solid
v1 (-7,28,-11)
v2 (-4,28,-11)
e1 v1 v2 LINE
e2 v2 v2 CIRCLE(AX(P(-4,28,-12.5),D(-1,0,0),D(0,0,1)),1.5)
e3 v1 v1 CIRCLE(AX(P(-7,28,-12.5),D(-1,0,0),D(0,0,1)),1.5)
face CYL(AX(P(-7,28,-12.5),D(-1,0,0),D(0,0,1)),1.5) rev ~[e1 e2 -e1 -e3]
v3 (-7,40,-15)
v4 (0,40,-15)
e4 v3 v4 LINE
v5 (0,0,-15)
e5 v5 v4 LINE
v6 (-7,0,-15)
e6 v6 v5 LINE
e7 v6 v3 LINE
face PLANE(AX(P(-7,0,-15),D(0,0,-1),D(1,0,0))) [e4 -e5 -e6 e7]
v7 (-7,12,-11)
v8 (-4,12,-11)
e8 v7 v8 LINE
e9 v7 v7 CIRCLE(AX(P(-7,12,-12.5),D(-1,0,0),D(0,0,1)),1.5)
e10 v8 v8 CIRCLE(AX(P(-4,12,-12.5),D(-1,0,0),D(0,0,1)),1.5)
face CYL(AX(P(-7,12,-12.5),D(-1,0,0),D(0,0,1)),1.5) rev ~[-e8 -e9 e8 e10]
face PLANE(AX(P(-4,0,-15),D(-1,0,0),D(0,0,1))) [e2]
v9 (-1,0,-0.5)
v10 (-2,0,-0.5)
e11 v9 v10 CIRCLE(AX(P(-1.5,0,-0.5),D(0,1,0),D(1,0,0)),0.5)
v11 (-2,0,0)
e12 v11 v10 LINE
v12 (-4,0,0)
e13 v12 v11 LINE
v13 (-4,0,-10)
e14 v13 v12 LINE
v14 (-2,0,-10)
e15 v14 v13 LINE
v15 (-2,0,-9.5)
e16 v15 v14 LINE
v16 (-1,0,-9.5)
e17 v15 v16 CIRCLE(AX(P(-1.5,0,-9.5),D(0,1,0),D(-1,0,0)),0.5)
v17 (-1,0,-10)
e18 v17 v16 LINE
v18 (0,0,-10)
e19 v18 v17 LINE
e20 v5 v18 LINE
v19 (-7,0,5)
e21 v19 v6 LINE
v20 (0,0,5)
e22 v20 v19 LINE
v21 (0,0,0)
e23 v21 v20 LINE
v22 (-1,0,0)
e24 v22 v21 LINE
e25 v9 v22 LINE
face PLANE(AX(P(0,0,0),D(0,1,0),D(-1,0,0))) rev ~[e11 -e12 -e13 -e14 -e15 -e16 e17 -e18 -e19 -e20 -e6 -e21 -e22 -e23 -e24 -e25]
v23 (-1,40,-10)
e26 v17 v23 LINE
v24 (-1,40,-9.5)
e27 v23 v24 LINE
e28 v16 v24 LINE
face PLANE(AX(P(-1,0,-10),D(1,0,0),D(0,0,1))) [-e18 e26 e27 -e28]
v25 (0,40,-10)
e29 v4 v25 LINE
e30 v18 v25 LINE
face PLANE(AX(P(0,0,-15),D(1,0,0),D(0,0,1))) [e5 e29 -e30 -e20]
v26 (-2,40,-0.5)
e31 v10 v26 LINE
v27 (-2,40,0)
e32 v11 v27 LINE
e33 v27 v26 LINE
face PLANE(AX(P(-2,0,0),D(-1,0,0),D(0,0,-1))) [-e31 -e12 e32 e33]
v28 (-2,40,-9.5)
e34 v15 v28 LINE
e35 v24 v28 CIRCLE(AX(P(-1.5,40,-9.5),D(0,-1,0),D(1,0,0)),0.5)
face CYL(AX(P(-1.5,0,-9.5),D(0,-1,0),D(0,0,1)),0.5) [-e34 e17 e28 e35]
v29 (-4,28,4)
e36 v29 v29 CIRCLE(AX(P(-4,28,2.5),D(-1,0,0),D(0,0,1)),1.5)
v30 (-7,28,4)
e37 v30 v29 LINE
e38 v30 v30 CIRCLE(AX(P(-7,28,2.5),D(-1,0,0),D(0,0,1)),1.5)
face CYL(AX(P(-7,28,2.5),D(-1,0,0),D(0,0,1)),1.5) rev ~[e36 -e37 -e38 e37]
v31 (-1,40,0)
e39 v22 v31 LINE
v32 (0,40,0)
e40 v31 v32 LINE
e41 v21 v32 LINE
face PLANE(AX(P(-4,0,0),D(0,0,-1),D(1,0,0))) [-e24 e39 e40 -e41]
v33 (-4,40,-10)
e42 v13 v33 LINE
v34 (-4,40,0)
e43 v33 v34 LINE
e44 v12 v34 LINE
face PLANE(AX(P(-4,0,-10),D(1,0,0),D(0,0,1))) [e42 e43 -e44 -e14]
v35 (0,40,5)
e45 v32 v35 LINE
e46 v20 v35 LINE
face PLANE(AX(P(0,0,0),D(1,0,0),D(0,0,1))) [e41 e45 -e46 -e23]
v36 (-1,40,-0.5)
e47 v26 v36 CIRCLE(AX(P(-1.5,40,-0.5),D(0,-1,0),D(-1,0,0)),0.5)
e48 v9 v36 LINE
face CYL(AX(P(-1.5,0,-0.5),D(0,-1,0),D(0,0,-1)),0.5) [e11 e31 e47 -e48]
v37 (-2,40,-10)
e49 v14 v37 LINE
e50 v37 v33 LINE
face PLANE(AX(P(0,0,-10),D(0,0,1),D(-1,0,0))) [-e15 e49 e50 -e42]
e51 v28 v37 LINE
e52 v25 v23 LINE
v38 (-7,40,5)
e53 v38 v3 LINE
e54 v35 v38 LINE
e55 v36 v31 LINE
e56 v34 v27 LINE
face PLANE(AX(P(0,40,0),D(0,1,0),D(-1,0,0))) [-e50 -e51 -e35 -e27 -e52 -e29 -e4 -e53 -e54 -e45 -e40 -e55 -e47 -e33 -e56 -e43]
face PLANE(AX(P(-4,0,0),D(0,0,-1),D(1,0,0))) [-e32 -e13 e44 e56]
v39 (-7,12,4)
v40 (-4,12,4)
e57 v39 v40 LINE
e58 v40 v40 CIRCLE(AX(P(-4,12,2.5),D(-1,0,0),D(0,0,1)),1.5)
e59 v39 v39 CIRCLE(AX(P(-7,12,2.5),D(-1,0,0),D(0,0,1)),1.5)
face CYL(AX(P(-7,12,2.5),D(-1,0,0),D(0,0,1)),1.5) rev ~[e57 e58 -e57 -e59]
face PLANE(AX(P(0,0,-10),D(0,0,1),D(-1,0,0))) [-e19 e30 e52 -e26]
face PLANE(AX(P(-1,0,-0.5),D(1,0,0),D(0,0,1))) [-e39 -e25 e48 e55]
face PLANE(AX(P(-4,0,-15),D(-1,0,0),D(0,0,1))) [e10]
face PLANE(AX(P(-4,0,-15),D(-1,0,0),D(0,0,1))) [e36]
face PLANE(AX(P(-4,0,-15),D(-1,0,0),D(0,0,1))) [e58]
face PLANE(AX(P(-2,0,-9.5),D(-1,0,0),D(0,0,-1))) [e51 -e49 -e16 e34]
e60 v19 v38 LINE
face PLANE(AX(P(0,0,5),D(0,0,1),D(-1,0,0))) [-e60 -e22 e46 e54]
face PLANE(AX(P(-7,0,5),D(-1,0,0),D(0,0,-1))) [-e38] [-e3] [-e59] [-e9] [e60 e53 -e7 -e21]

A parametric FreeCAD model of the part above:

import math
import FreeCAD as App
import Part
import Sketcher
from FreeCAD import Vector

doc = App.newDocument("Part")
body = doc.addObject("PartDesign::Body", "Body")

# Sketch on XZ plane
sketch1 = body.newObject("Sketcher::SketchObject", "Sketch")
sketch1.AttachmentSupport = (doc.getObject("XZ_Plane"), [""])
sketch1.MapMode = "FlatFace"
sketch1.addGeometry([
    Part.LineSegment(Vector(0, 5, 0), Vector(0, 0, 0)),  # 0
    Part.LineSegment(Vector(0, 0, 0), Vector(-4, 0, 0)),  # 1
    Part.LineSegment(Vector(-4, 0, 0), Vector(-4, -10, 0)),  # 2
    Part.LineSegment(Vector(-4, -10, 0), Vector(0, -10, 0)),  # 3
    Part.LineSegment(Vector(0, -10, 0), Vector(0, -15, 0)),  # 4
    Part.LineSegment(Vector(0, -15, 0), Vector(-7, -15, 0)),  # 5
    Part.LineSegment(Vector(-7, -15, 0), Vector(-7, 5, 0)),  # 6
    Part.LineSegment(Vector(-7, 5, 0), Vector(0, 5, 0)),  # 7
], False)
sketch1.addConstraint([
    Sketcher.Constraint("Coincident", 0, 2, 1, 1),
    Sketcher.Constraint("Coincident", 1, 2, 2, 1),
    Sketcher.Constraint("Coincident", 2, 2, 3, 1),
    Sketcher.Constraint("Coincident", 3, 2, 4, 1),
    Sketcher.Constraint("Coincident", 4, 2, 5, 1),
    Sketcher.Constraint("Coincident", 5, 2, 6, 1),
    Sketcher.Constraint("Coincident", 6, 2, 7, 1),
    Sketcher.Constraint("Coincident", 7, 2, 0, 1),
    Sketcher.Constraint("Vertical", 0),
    Sketcher.Constraint("Horizontal", 1),
    Sketcher.Constraint("Vertical", 2),
    Sketcher.Constraint("Horizontal", 3),
    Sketcher.Constraint("Vertical", 4),
    Sketcher.Constraint("Horizontal", 5),
    Sketcher.Constraint("Vertical", 6),
    Sketcher.Constraint("Horizontal", 7),
    Sketcher.Constraint("Coincident", 0, 2, -1, 1),
    Sketcher.Constraint("PointOnObject", 3, 2, -2),
    Sketcher.Constraint("Equal", 0, 4),
    Sketcher.Constraint("DistanceX", 1, 2, 1, 1, 4.0),
    Sketcher.Constraint("DistanceX", 5, 2, 5, 1, 7.0),
    Sketcher.Constraint("DistanceY", 0, 2, 0, 1, 5.0),
    Sketcher.Constraint("DistanceY", 2, 2, 2, 1, 10.0),
])
pad1 = body.newObject("PartDesign::Pad", "Pad")
pad1.Profile = sketch1
pad1.Length = 40
pad1.Reversed = True

# Sketch on XZ plane
sketch2 = body.newObject("Sketcher::SketchObject", "Sketch001")
sketch2.AttachmentSupport = (doc.getObject("XZ_Plane"), [""])
sketch2.MapMode = "FlatFace"
sketch2.addGeometry([
    Part.LineSegment(Vector(-2, -10, 0), Vector(-1, -10, 0)),  # 0
    Part.LineSegment(Vector(-1, -10, 0), Vector(-1, -9.5, 0)),  # 1
    Part.ArcOfCircle(Part.Circle(Vector(-1.5, -9.5, 0), Vector(0, 0, 1), 0.5), math.radians(0), math.radians(180)),  # 2
    Part.LineSegment(Vector(-2, -9.5, 0), Vector(-2, -10, 0)),  # 3
    Part.ArcOfCircle(Part.Circle(Vector(-1.5, -0.5, 0), Vector(0, 0, 1), 0.5), math.radians(180), math.radians(360)),  # 4
    Part.LineSegment(Vector(-1, -0.5, 0), Vector(-1, 0, 0)),  # 5
    Part.LineSegment(Vector(-1, 0, 0), Vector(-2, 0, 0)),  # 6
    Part.LineSegment(Vector(-2, 0, 0), Vector(-2, -0.5, 0)),  # 7
], False)
sketch2.addConstraint([
    Sketcher.Constraint("Coincident", 0, 2, 1, 1),
    Sketcher.Constraint("Tangent", 1, 2, 2, 1),
    Sketcher.Constraint("Tangent", 2, 2, 3, 1),
    Sketcher.Constraint("Coincident", 3, 2, 0, 1),
    Sketcher.Constraint("Tangent", 4, 2, 5, 1),
    Sketcher.Constraint("Coincident", 5, 2, 6, 1),
    Sketcher.Constraint("Coincident", 6, 2, 7, 1),
    Sketcher.Constraint("Tangent", 7, 2, 4, 1),
    Sketcher.Constraint("Horizontal", 0),
    Sketcher.Constraint("Vertical", 1),
    Sketcher.Constraint("Vertical", 3),
    Sketcher.Constraint("Vertical", 5),
    Sketcher.Constraint("Horizontal", 6),
    Sketcher.Constraint("Vertical", 7),
    Sketcher.Constraint("Equal", 2, 4),
    Sketcher.Constraint("PointOnObject", 5, 2, -1),
    Sketcher.Constraint("Vertical", 2, 3, 4, 3),
    Sketcher.Constraint("Equal", 3, 5),
    Sketcher.Constraint("Radius", 2, 0.5),
    Sketcher.Constraint("DistanceY", 1, 1, 1, 2, 0.5),
    Sketcher.Constraint("DistanceX", 0, 2, -1, 1, 1.0),
    Sketcher.Constraint("DistanceY", 0, 2, -1, 1, 10.0),
])
pad2 = body.newObject("PartDesign::Pad", "Pad001")
pad2.Profile = sketch2
pad2.Length = 40
pad2.Reversed = True

# Sketch on YZ plane
sketch3 = body.newObject("Sketcher::SketchObject", "Sketch002")
sketch3.AttachmentSupport = (doc.getObject("YZ_Plane"), [""])
sketch3.MapMode = "FlatFace"
sketch3.AttachmentOffset = App.Placement(Vector(0, 0, -7), App.Rotation())
sketch3.addGeometry([
    Part.Circle(Vector(12, -12.5, 0), Vector(0, 0, 1), 1.5),
    Part.Circle(Vector(28, -12.5, 0), Vector(0, 0, 1), 1.5),
    Part.Circle(Vector(12, 2.5, 0), Vector(0, 0, 1), 1.5),
    Part.Circle(Vector(28, 2.5, 0), Vector(0, 0, 1), 1.5),
], False)
sketch3.addConstraint([
    Sketcher.Constraint("Equal", 0, 1),
    Sketcher.Constraint("Equal", 1, 2),
    Sketcher.Constraint("Equal", 2, 3),
    Sketcher.Constraint("Horizontal", 0, 3, 1, 3),
    Sketcher.Constraint("Horizontal", 2, 3, 3, 3),
    Sketcher.Constraint("Vertical", 0, 3, 2, 3),
    Sketcher.Constraint("Vertical", 1, 3, 3, 3),
    Sketcher.Constraint("Diameter", 0, 3.0),
    Sketcher.Constraint("DistanceX", -1, 1, 0, 3, 12.0),
    Sketcher.Constraint("DistanceX", 0, 3, 1, 3, 16.0),
    Sketcher.Constraint("DistanceY", 0, 3, 2, 3, 15.0),
    Sketcher.Constraint("DistanceY", -1, 1, 2, 3, 2.5),
])
pocket1 = body.newObject("PartDesign::Pocket", "Pocket")
pocket1.Profile = sketch3
pocket1.Length = 3
pocket1.Reversed = True

doc.recompute()
